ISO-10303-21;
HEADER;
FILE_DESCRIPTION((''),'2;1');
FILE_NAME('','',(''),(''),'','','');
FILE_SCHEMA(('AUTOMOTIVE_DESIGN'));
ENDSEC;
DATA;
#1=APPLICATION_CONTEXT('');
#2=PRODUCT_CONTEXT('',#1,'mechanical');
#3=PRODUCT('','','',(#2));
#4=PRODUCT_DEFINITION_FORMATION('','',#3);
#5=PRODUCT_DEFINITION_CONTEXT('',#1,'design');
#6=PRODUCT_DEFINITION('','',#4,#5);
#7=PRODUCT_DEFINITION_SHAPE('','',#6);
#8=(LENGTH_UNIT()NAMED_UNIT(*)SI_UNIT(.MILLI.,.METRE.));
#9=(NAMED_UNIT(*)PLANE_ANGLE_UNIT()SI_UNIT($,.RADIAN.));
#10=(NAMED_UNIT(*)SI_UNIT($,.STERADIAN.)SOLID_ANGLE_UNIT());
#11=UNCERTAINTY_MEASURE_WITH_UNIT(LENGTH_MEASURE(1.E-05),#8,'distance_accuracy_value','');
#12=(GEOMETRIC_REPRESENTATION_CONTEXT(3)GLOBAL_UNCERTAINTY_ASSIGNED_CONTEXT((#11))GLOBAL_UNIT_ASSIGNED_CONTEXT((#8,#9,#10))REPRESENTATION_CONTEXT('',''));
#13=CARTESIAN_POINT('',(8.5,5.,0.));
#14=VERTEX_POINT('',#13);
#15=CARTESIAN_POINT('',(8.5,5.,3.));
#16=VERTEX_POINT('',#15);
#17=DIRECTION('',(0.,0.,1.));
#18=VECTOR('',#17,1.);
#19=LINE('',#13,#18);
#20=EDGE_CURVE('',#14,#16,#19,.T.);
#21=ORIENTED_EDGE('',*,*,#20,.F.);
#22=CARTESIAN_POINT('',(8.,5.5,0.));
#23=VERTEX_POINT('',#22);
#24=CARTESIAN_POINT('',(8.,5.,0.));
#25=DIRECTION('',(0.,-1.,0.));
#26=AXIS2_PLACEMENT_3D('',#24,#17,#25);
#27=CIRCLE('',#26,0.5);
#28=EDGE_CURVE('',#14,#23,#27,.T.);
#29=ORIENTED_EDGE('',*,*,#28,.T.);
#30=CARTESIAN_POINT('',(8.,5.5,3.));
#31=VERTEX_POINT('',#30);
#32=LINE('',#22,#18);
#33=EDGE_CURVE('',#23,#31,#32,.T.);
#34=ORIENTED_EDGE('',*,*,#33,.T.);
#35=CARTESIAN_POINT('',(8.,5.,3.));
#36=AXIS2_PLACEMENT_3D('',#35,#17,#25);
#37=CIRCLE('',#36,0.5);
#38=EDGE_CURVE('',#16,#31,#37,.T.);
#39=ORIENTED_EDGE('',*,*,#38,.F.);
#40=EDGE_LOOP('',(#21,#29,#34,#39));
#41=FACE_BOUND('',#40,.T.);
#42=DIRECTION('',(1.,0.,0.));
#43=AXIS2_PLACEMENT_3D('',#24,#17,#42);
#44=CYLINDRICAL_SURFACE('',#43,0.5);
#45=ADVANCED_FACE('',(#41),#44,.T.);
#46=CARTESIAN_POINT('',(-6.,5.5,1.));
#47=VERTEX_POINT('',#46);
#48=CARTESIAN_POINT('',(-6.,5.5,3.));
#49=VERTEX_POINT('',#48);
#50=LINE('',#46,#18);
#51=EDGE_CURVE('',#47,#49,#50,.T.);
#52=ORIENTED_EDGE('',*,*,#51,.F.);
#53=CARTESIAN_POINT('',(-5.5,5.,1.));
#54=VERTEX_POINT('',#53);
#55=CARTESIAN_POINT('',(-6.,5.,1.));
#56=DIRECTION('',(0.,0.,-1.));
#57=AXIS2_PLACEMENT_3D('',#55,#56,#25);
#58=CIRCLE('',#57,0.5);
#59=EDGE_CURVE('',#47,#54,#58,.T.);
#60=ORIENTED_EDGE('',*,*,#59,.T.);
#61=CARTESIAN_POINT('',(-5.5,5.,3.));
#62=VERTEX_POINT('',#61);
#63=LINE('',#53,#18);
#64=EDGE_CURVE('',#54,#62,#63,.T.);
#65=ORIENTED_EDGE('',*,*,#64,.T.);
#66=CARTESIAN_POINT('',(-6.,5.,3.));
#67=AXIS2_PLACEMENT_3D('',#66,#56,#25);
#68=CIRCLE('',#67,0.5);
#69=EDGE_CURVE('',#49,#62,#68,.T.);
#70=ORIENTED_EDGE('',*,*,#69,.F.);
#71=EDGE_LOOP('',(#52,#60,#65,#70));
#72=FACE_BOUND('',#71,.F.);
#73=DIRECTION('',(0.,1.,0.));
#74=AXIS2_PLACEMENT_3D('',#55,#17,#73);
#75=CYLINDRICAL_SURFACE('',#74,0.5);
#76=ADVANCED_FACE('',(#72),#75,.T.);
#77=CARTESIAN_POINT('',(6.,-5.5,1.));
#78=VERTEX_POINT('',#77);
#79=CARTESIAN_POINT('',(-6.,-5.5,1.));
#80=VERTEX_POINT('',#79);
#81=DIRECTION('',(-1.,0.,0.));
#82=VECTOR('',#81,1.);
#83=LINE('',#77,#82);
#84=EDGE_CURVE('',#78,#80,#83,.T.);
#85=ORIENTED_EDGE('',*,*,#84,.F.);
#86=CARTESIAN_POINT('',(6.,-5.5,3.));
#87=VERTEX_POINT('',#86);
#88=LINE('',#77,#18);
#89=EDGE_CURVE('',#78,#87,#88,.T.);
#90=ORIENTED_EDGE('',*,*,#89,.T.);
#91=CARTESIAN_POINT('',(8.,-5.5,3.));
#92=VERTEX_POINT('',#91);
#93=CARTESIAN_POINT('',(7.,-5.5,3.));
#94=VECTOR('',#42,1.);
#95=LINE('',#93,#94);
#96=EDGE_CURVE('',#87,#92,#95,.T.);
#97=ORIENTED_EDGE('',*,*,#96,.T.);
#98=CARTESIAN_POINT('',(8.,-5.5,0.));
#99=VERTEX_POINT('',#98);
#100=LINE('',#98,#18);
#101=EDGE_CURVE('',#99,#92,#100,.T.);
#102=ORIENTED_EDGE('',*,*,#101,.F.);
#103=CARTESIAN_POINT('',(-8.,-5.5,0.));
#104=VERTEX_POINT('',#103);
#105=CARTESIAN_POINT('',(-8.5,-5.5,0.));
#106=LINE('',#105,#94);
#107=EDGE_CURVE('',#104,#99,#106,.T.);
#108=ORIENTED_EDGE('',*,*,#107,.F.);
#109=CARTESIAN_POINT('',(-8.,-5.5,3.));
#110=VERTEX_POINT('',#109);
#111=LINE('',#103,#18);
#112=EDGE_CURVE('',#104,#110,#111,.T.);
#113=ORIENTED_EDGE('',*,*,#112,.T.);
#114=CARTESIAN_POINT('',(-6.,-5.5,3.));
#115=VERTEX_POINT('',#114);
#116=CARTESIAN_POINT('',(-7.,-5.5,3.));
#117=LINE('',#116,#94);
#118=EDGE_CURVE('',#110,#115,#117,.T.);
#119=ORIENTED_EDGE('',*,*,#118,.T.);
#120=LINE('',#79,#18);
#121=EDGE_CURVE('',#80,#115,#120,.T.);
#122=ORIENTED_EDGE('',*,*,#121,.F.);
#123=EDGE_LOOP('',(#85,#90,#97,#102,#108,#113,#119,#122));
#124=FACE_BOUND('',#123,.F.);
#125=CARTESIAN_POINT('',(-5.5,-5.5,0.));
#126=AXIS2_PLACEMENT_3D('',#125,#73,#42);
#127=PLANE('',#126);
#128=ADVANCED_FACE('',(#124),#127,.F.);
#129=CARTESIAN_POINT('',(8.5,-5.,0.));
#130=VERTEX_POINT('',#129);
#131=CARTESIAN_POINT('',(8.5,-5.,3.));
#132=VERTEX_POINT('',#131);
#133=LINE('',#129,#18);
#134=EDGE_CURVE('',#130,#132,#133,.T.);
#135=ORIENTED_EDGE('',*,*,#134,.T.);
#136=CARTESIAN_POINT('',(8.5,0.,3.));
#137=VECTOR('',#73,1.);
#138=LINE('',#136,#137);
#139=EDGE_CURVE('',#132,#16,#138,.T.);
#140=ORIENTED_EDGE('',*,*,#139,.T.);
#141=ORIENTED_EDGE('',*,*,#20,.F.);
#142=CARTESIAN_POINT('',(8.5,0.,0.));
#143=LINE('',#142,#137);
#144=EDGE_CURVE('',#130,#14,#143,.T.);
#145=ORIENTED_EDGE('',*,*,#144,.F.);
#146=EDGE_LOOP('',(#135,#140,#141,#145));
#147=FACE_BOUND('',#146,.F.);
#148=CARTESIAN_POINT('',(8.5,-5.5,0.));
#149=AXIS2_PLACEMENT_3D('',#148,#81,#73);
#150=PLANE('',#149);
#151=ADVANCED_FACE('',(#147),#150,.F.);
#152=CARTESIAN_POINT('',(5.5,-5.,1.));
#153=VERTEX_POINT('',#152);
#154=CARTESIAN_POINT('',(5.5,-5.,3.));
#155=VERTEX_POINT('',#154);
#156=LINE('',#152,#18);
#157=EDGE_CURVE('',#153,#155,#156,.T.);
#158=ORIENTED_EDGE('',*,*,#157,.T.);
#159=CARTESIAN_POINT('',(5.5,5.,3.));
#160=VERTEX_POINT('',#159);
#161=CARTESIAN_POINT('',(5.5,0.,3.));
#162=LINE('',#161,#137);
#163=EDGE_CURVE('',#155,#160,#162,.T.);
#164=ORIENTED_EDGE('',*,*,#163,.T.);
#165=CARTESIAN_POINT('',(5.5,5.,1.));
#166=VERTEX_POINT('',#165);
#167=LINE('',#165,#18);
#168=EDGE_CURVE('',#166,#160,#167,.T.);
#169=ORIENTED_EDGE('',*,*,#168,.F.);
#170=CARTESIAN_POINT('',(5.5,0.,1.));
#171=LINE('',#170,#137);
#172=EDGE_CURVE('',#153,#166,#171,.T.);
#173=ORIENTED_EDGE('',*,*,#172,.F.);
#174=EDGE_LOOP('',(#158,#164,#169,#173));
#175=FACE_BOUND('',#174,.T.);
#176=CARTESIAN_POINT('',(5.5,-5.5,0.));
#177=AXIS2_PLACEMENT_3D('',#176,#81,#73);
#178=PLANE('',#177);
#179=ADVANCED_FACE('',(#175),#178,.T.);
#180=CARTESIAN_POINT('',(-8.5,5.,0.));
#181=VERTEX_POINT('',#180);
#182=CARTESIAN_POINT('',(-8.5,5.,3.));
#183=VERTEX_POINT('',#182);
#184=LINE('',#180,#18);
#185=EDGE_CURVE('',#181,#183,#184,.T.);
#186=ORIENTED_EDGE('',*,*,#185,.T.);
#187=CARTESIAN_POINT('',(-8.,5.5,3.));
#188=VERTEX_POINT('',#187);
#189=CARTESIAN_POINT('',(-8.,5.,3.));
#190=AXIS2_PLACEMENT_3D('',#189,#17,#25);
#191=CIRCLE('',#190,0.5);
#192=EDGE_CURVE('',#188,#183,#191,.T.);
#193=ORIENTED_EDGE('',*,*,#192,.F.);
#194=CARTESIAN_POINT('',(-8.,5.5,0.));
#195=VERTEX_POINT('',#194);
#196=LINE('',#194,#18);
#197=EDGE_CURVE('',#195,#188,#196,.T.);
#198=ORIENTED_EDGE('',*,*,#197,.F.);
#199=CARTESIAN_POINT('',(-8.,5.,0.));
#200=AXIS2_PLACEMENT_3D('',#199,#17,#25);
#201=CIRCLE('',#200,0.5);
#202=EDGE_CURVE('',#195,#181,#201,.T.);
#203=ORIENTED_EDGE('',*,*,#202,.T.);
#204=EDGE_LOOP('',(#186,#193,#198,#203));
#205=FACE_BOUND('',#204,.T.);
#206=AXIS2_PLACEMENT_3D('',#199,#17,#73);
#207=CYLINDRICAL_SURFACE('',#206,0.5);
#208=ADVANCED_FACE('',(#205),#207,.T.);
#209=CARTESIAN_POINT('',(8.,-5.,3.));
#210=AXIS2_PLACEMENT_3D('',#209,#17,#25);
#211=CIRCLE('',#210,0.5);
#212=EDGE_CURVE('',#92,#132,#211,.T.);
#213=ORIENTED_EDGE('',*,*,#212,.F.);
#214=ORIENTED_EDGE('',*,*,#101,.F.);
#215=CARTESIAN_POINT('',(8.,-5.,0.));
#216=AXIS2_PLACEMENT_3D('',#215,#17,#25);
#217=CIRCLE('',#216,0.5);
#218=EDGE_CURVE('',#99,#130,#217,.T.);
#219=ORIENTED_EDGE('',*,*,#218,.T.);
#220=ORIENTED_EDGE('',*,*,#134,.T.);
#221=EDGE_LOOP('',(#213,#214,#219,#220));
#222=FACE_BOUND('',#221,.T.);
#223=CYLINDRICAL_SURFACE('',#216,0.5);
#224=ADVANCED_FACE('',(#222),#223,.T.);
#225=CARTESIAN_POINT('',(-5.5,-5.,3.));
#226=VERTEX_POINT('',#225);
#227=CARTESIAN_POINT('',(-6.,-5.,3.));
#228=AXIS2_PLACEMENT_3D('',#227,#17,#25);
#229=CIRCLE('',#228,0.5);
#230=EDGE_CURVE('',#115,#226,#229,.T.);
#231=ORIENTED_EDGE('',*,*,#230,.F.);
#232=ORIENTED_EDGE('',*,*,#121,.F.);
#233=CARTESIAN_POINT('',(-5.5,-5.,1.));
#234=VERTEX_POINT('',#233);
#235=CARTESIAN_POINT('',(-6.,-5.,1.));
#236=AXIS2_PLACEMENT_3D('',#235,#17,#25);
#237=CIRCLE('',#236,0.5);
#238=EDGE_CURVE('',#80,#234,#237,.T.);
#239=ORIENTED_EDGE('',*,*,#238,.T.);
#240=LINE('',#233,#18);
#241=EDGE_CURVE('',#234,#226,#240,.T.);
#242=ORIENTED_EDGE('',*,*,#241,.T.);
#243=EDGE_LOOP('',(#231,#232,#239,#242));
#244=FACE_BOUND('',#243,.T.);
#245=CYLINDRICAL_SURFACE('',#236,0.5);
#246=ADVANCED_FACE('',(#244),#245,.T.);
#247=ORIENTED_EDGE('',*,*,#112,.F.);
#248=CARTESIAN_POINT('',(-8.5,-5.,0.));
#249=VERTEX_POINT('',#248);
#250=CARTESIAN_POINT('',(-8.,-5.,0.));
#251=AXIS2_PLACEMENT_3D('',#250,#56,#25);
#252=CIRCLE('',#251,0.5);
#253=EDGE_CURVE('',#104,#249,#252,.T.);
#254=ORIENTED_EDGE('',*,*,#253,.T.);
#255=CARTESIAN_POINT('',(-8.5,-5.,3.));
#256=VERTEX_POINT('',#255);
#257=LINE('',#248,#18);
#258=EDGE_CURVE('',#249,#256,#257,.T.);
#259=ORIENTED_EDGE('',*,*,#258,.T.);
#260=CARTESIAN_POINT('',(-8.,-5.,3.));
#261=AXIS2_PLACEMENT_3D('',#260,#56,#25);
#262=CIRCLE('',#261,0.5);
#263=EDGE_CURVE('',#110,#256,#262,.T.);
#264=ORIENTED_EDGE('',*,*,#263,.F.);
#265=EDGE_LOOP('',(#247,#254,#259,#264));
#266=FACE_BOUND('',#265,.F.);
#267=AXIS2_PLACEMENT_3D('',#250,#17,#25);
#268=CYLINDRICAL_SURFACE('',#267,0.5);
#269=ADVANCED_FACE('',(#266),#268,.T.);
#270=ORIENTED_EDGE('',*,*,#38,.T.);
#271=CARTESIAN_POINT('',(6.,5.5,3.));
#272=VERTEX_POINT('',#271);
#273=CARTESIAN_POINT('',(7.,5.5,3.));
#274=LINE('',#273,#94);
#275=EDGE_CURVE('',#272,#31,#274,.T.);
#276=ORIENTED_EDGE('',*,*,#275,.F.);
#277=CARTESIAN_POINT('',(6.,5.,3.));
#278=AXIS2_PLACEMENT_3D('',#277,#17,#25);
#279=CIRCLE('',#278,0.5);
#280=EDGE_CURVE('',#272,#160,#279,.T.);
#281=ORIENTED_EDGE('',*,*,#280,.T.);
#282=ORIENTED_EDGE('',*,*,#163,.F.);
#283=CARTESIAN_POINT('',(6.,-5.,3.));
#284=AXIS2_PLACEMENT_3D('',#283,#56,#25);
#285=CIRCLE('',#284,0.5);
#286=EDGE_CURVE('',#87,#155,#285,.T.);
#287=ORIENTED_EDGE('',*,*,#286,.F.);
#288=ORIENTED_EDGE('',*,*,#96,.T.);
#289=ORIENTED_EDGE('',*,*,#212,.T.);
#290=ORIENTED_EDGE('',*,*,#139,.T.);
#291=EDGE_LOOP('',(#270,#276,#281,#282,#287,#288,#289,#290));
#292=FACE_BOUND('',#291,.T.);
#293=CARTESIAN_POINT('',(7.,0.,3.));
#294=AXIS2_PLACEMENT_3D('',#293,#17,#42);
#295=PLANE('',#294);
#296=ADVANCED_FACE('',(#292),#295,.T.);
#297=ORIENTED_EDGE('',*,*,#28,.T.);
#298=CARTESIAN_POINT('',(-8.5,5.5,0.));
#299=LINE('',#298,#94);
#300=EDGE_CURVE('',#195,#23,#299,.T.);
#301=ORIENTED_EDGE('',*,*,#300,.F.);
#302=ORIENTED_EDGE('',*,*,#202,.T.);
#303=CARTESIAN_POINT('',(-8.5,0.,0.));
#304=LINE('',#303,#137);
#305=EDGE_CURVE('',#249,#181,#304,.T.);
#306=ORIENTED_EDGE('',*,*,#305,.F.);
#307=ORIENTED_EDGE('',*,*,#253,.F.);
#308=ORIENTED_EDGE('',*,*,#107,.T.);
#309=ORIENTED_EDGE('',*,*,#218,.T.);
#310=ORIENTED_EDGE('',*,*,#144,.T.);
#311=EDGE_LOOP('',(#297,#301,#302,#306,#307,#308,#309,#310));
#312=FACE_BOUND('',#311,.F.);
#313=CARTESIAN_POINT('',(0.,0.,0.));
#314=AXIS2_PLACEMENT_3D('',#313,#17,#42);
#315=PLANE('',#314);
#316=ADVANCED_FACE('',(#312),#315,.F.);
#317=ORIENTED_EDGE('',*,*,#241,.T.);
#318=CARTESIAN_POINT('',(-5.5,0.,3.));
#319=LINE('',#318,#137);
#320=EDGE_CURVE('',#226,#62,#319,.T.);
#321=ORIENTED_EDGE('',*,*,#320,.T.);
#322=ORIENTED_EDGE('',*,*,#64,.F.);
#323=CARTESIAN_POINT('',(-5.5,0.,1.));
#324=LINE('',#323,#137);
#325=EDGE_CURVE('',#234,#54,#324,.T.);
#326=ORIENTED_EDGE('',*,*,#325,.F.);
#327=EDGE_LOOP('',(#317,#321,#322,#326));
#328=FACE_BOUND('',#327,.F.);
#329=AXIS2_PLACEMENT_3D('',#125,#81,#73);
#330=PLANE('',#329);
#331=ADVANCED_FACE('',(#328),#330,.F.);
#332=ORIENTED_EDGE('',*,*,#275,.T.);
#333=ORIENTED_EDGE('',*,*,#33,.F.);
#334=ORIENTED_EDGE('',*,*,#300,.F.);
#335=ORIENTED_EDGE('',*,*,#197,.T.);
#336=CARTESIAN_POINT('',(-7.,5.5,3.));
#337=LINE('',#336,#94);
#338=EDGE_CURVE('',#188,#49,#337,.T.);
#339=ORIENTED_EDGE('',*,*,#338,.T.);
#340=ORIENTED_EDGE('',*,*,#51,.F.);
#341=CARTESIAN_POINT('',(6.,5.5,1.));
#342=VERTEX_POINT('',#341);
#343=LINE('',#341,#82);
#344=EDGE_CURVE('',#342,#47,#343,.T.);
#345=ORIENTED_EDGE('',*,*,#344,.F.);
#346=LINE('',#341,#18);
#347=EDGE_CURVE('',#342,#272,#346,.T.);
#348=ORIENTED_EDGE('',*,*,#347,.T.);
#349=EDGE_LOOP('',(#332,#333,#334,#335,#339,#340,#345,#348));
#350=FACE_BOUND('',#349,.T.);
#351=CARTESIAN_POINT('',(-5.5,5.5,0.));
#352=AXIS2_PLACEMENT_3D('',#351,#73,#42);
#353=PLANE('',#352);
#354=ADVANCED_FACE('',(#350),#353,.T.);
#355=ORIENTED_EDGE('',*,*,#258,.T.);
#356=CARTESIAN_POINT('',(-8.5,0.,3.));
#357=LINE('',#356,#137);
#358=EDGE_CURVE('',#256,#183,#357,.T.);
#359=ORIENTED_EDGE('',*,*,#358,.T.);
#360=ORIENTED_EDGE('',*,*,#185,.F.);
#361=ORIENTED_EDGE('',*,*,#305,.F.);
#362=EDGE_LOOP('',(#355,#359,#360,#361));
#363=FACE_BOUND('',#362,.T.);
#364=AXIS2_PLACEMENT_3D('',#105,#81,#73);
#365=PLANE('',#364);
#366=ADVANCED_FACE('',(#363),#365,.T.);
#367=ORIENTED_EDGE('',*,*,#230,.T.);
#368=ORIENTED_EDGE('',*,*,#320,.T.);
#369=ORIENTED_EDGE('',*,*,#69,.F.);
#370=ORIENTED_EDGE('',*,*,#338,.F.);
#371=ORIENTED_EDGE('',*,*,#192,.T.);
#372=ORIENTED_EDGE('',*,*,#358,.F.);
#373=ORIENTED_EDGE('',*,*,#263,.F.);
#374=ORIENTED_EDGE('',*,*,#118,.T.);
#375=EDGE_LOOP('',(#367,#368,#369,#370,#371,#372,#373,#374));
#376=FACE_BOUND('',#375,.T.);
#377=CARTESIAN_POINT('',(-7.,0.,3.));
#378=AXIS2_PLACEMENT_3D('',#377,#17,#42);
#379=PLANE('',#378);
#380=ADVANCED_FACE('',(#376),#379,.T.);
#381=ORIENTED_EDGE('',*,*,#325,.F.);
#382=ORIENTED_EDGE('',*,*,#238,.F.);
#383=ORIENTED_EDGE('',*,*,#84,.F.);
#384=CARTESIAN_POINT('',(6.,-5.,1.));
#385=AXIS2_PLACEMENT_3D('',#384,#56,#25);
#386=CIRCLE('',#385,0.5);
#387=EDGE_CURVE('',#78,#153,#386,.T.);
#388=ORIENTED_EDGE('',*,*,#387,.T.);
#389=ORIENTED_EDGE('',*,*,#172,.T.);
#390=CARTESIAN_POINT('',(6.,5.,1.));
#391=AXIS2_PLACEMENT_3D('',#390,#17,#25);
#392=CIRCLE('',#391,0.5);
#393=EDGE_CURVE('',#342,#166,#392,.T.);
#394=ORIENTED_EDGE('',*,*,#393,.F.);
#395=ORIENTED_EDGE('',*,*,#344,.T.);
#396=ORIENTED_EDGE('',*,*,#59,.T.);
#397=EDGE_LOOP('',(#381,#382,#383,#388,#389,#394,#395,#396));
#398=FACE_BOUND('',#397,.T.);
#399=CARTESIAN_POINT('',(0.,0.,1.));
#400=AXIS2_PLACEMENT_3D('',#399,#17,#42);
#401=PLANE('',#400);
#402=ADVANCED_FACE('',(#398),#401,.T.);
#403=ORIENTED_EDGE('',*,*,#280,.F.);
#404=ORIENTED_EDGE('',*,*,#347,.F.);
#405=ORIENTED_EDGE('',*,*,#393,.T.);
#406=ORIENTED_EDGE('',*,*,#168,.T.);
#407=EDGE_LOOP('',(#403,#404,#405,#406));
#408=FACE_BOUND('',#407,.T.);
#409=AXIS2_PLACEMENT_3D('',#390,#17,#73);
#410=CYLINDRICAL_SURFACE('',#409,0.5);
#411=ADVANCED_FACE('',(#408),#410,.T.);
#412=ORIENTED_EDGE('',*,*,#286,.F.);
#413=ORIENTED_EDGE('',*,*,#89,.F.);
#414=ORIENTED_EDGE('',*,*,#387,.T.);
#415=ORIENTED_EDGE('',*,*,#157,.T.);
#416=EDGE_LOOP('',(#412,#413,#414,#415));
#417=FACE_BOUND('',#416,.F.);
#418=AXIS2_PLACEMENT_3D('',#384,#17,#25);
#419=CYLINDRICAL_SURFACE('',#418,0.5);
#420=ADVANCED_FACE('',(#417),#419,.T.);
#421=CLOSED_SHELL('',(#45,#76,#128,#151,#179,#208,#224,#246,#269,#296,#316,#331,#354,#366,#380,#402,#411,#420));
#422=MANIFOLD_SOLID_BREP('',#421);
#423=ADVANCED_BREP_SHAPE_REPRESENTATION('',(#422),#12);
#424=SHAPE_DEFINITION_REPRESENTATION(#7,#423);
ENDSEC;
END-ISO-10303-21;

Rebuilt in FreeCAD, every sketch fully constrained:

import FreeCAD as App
import Part
import Sketcher
from FreeCAD import Vector


def edges_at(feature, points):
    """Names of the edges that pass closest to the given points."""
    edges = feature.Shape.Edges
    near = lambda p: min(range(len(edges)), key=lambda i: edges[i].distToShape(Part.Vertex(*p))[0])
    return sorted({f"Edge{near(p) + 1}" for p in points})


def add_polygon(sketch, points):
    """Adds a closed chain of lines whose ends are joined by coincident constraints."""
    first, n = sketch.GeometryCount, len(points)
    for a, b in zip(points, points[1:] + points[:1]):
        sketch.addGeometry(Part.LineSegment(App.Vector(*a, 0), App.Vector(*b, 0)), False)
    for i in range(n):
        sketch.addConstraint(Sketcher.Constraint("Coincident", first + i, 2, first + (i + 1) % n, 1))

doc = App.newDocument("Part")
body = doc.addObject("PartDesign::Body", "Body")
body.AllowCompound = True

# Sketch on XY plane
sketch1 = body.newObject("Sketcher::SketchObject", "Sketch")
sketch1.AttachmentSupport = (doc.getObject("XY_Plane"), [""])
sketch1.MapMode = "FlatFace"
add_polygon(sketch1, [(-8.5, 5.5), (-8.5, -5.5), (-5.5, -5.5), (-5.5, 5.5)])  # lines 0-3
add_polygon(sketch1, [(5.5, 5.5), (5.5, -5.5), (8.5, -5.5), (8.5, 5.5)])  # lines 4-7
sketch1.addConstraint([
    Sketcher.Constraint("Vertical", 0),
    Sketcher.Constraint("Horizontal", 1),
    Sketcher.Constraint("Vertical", 2),
    Sketcher.Constraint("Horizontal", 3),
    Sketcher.Constraint("Vertical", 4),
    Sketcher.Constraint("Horizontal", 5),
    Sketcher.Constraint("Vertical", 6),
    Sketcher.Constraint("Horizontal", 7),
    Sketcher.Constraint("Symmetric", 2, 2, 4, 2, -1, 1),
    Sketcher.Constraint("Symmetric", 0, 2, 6, 2, -1, 1),
    Sketcher.Constraint("Horizontal", 1, 2, 4, 2),
    Sketcher.Constraint("DistanceX", 1, 1, 1, 2, 3.0),
    Sketcher.Constraint("DistanceY", 0, 2, 0, 1, 11.0),
    Sketcher.Constraint("DistanceX", 1, 2, 4, 2, 11.0),
])
pad1 = body.newObject("PartDesign::Pad", "Pad")
pad1.Profile = sketch1
pad1.Length = 3

# Sketch on XY plane
sketch2 = body.newObject("Sketcher::SketchObject", "Sketch001")
sketch2.AttachmentSupport = (doc.getObject("XY_Plane"), [""])
sketch2.MapMode = "FlatFace"
add_polygon(sketch2, [(-5.5, 5.5), (-5.5, -5.5), (5.5, -5.5), (5.5, 5.5)])  # lines 0-3
sketch2.addConstraint([
    Sketcher.Constraint("Vertical", 0),
    Sketcher.Constraint("Horizontal", 1),
    Sketcher.Constraint("Vertical", 2),
    Sketcher.Constraint("Horizontal", 3),
    Sketcher.Constraint("Symmetric", 0, 2, 2, 2, -1, 1),
    Sketcher.Constraint("Equal", 3, 0),
    Sketcher.Constraint("DistanceX", 1, 1, 1, 2, 11.0),
])
pad2 = body.newObject("PartDesign::Pad", "Pad001")
pad2.Profile = sketch2
pad2.Length = 1
doc.recompute()

fillet = body.newObject("PartDesign::Fillet", "Fillet")
fillet.Base = (pad2, edges_at(pad2, [
    (-5.5, -5.5, 2),
    (5.5, -5.5, 2),
    (8.5, -5.5, 1.5),
    (8.5, 5.5, 1.5),
    (-8.5, -5.5, 1.5),
    (-5.5, 5.5, 2),
    (-8.5, 5.5, 1.5),
    (5.5, 5.5, 2),
]))
fillet.Radius = 0.5

doc.recompute()
